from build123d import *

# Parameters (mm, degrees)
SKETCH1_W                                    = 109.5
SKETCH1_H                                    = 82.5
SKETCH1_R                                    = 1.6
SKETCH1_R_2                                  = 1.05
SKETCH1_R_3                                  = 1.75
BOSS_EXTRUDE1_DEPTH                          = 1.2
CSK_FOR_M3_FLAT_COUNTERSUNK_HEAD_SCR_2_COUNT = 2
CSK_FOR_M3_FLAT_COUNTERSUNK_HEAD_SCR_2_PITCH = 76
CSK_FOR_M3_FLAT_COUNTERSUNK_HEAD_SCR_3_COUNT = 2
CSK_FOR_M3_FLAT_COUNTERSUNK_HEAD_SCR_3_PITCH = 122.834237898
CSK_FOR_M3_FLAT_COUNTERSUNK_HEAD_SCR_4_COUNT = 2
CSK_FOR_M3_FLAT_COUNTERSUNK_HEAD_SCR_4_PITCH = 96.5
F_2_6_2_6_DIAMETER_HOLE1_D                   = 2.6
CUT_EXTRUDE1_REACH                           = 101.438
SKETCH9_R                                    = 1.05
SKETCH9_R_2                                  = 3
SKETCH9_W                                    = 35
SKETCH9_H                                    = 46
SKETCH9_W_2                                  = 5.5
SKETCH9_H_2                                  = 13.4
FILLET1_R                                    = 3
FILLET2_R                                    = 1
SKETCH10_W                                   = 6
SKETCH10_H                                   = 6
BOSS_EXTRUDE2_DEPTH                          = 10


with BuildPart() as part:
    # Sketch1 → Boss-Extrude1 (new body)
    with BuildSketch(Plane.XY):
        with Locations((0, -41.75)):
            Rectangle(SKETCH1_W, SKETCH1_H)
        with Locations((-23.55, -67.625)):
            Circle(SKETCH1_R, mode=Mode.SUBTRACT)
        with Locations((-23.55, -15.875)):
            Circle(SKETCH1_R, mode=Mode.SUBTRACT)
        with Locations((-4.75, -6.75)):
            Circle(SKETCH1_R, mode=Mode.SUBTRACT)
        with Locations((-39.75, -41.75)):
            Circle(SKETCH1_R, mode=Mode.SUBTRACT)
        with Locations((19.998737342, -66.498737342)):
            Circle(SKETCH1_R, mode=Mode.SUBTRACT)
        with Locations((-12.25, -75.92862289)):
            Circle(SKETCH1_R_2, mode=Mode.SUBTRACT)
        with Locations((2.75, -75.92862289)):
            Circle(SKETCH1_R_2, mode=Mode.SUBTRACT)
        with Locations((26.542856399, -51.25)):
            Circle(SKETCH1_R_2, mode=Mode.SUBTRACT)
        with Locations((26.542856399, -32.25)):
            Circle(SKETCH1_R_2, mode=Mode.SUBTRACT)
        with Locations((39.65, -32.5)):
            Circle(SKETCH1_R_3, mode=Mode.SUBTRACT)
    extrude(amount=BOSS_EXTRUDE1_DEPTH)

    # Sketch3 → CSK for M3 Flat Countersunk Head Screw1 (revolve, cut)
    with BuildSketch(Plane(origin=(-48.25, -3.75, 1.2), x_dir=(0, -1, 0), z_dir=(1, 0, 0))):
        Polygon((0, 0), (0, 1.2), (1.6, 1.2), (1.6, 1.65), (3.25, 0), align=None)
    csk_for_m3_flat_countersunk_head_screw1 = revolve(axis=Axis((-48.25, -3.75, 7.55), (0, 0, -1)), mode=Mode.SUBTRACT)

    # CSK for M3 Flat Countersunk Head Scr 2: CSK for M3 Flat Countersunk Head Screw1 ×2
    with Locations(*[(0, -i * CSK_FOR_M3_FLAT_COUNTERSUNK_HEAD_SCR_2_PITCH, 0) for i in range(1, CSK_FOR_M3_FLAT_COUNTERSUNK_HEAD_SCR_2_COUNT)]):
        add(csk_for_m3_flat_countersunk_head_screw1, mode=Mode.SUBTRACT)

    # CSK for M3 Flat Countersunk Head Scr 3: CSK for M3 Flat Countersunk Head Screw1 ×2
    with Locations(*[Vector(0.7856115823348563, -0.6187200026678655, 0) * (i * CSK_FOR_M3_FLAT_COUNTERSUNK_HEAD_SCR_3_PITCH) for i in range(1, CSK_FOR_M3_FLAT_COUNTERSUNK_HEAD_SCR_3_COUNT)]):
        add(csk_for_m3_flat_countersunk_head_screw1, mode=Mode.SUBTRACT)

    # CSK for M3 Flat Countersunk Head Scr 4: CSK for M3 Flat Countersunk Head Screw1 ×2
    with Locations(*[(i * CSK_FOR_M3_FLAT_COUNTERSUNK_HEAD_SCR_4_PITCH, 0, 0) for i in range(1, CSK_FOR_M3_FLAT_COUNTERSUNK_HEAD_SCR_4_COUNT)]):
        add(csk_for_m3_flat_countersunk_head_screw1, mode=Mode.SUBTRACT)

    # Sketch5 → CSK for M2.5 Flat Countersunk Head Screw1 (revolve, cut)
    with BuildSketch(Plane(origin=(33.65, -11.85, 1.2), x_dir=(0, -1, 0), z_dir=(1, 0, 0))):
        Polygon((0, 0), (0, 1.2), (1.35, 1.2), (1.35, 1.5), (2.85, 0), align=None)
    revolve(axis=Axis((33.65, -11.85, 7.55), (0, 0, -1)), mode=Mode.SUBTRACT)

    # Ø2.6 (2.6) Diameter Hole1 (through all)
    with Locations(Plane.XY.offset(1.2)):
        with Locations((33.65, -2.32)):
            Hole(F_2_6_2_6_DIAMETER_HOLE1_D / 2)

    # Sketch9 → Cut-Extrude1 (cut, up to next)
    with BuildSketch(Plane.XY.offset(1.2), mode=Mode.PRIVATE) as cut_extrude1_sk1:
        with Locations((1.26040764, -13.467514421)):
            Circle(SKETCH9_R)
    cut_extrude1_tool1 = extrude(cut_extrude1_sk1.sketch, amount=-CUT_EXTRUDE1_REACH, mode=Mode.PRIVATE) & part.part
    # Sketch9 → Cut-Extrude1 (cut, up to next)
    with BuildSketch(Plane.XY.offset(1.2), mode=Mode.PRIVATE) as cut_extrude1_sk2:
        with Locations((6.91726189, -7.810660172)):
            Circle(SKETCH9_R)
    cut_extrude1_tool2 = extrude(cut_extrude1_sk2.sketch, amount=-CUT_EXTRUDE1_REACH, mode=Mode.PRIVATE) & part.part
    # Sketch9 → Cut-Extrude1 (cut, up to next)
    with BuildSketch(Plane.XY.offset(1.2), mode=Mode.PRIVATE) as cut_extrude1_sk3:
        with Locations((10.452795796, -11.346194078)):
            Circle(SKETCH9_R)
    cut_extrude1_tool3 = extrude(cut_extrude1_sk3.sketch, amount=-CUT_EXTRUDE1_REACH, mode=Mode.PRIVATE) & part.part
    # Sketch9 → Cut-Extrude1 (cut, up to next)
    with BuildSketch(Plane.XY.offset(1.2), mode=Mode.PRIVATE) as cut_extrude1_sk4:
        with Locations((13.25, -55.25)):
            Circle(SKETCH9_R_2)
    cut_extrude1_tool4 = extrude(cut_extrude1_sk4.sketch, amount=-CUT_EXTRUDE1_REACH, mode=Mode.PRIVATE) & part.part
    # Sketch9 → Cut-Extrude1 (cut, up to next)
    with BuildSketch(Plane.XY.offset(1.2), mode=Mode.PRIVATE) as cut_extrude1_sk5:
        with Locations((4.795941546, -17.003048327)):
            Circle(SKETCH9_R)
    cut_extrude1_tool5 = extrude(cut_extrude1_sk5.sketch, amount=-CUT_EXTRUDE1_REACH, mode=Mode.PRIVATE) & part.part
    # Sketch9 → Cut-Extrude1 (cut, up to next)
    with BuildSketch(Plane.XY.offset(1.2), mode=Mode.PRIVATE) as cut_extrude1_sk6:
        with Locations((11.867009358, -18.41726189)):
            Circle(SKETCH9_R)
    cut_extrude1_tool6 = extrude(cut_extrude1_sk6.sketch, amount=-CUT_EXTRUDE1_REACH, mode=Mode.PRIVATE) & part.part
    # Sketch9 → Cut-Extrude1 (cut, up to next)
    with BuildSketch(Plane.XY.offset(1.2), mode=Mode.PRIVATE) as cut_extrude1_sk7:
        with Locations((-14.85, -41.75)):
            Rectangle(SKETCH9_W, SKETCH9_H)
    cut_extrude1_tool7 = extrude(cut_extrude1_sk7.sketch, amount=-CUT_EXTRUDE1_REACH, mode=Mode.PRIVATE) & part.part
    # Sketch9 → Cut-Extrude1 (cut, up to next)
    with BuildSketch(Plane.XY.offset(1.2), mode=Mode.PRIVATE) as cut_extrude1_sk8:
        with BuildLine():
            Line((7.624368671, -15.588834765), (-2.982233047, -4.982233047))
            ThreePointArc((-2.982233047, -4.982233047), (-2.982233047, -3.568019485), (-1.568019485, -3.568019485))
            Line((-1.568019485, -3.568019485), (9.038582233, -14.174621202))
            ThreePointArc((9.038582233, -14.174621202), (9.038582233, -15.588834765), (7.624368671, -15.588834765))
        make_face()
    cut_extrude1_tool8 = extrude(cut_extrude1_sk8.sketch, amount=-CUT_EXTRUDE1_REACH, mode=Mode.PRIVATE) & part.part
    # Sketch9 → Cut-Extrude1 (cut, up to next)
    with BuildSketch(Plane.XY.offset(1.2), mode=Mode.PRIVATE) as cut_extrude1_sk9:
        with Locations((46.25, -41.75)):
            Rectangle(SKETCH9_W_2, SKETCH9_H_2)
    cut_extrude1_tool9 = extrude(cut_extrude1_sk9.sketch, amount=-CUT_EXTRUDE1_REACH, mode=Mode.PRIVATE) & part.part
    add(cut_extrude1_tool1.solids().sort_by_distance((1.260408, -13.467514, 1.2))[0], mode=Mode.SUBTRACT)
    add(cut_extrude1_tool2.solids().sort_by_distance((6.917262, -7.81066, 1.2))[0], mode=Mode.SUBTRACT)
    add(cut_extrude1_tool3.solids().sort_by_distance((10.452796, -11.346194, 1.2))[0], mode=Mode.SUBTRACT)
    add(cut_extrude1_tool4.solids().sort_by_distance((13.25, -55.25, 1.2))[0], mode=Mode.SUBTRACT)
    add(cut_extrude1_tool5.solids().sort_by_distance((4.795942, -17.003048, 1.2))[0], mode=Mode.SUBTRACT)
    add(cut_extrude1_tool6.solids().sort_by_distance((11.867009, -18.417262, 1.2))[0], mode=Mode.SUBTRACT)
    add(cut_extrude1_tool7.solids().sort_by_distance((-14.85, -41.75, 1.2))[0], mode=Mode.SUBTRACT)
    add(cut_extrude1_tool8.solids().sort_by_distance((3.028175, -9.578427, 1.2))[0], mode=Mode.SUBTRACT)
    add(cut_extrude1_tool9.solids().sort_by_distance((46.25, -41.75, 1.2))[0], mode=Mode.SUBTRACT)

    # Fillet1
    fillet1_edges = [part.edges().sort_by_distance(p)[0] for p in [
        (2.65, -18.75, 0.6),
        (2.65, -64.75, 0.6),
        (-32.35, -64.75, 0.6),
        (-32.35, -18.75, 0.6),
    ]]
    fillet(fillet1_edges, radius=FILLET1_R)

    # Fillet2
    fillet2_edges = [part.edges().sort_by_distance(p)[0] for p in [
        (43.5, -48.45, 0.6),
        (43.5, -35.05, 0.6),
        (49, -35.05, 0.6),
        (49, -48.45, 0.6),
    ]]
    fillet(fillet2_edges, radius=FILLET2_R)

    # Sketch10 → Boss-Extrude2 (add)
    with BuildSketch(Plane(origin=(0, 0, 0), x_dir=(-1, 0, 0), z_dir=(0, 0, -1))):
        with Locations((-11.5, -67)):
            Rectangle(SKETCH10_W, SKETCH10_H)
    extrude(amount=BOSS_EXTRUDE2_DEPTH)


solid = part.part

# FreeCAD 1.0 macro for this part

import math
import FreeCAD as App
import Part
import Sketcher

V = App.Vector
Q = App.Units.Quantity


def edges_at(feature, points):
    """Names of the edges that pass closest to the given points."""
    edges = feature.Shape.Edges
    near = lambda p: min(range(len(edges)), key=lambda i: edges[i].distToShape(Part.Vertex(*p))[0])
    return sorted({f"Edge{near(p) + 1}" for p in points})

doc = App.newDocument("Part")
params = doc.addObject("Spreadsheet::Sheet", "Params")
for row, (alias, value) in enumerate([
    ("sketch1_diameter", "3.2 mm"),
    ("sketch1_diameter2", "2.1 mm"),
    ("sketch1_diameter3", "3.5 mm"),
    ("sketch1_width", "109.5 mm"),
    ("sketch1_height", "82.5 mm"),
    ("pad1_length", "1.2 mm"),
    ("sketch2_width", "1.6 mm"),
    ("sketch2_height", "1.2 mm"),
    ("sketch2_width2", "3.25 mm"),
    ("groove_angle", "360 deg"),
    ("linearpattern_pitch", "76 mm"),
    ("linearpattern2_pitch", "122.834238 mm"),
    ("linearpattern3_pitch", "96.5 mm"),
    ("sketch3_height", "1.2 mm"),
    ("sketch3_height2", "0.3 mm"),
    ("sketch3_width", "2.85 mm"),
    ("groove2_angle", "360 deg"),
    ("sketch4_diameter", "2.6 mm"),
    ("hole_diameter", "2.6 mm"),
    ("sketch5_diameter", "2.1 mm"),
    ("sketch6_diameter", "2.1 mm"),
    ("sketch7_diameter", "2.1 mm"),
    ("sketch8_diameter", "6 mm"),
    ("sketch9_diameter", "2.1 mm"),
    ("sketch10_diameter", "2.1 mm"),
    ("sketch11_width", "35 mm"),
    ("sketch11_height", "46 mm"),
    ("sketch12_radius", "1 mm"),
    ("sketch12_length", "15 mm"),
    ("sketch13_width", "5.5 mm"),
    ("sketch13_height", "13.4 mm"),
    ("fillet_radius", "3 mm"),
    ("fillet2_radius", "1 mm"),
    ("sketch14_width", "6 mm"),
    ("pad2_length", "10 mm"),
], start=1):
    params.set(f"A{row}", alias)
    params.set(f"B{row}", "=" + value)
    params.setAlias(f"B{row}", alias)

body = doc.addObject("PartDesign::Body", "Body")

sketch1 = doc.addObject("Sketcher::SketchObject", "Sketch")
body.addObject(sketch1)
sketch1.AttachmentSupport = (doc.XY_Plane, [""])
sketch1.MapMode = "FlatFace"
sketch1.addGeometry([
    Part.LineSegment(V(-54.8, -0.5, 0), V(-54.8, -83, 0)),
    Part.LineSegment(V(-54.8, -83, 0), V(54.8, -83, 0)),
    Part.LineSegment(V(54.8, -83, 0), V(54.8, -0.5, 0)),
    Part.LineSegment(V(54.8, -0.5, 0), V(-54.8, -0.5, 0)),
    Part.Circle(V(-23.6, -67.6, 0), V(0, 0, 1), 1.6),
    Part.Circle(V(-12.2, -75.9, 0), V(0, 0, 1), 1.1),
    Part.Circle(V(-39.8, -41.8, 0), V(0, 0, 1), 1.6),
    Part.Circle(V(2.8, -75.9, 0), V(0, 0, 1), 1.1),
    Part.Circle(V(20, -66.5, 0), V(0, 0, 1), 1.6),
    Part.Circle(V(26.5, -51.2, 0), V(0, 0, 1), 1.1),
    Part.Circle(V(-23.6, -15.9, 0), V(0, 0, 1), 1.6),
    Part.Circle(V(-4.8, -6.8, 0), V(0, 0, 1), 1.6),
    Part.Circle(V(26.5, -32.2, 0), V(0, 0, 1), 1.1),
    Part.Circle(V(39.6, -32.5, 0), V(0, 0, 1), 1.8),
], False)
sketch1.addConstraint([
    Sketcher.Constraint("Coincident", 0, 2, 1, 1),
    Sketcher.Constraint("Coincident", 1, 2, 2, 1),
    Sketcher.Constraint("Coincident", 2, 2, 3, 1),
    Sketcher.Constraint("Coincident", 3, 2, 0, 1),
    Sketcher.Constraint("Vertical", 0),
    Sketcher.Constraint("Horizontal", 1),
    Sketcher.Constraint("Vertical", 2),
    Sketcher.Constraint("Horizontal", 3),
    Sketcher.Constraint("Equal", 4, 6),
    Sketcher.Constraint("Equal", 5, 7),
    Sketcher.Constraint("Equal", 6, 8),
    Sketcher.Constraint("Equal", 7, 9),
    Sketcher.Constraint("Equal", 8, 10),
    Sketcher.Constraint("Equal", 10, 11),
    Sketcher.Constraint("Equal", 9, 12),
    Sketcher.Constraint("Horizontal", 5, 3, 7, 3),
    Sketcher.Constraint("Vertical", 4, 3, 10, 3),
    Sketcher.Constraint("Vertical", 9, 3, 12, 3),
    Sketcher.Constraint("Diameter", 4, Q("3.2 mm")),
    Sketcher.Constraint("Diameter", 5, Q("2.1 mm")),
    Sketcher.Constraint("Diameter", 13, Q("3.5 mm")),
    Sketcher.Constraint("DistanceX", 1, 1, 1, 2, Q("109.5 mm")),
    Sketcher.Constraint("DistanceY", 0, 2, 0, 1, Q("82.5 mm")),
    Sketcher.Constraint("DistanceY", 0, 2, -1, 1, Q("83 mm")),
    Sketcher.Constraint("DistanceX", 5, 3, 7, 3, Q("15 mm")),
    Sketcher.Constraint("DistanceX", 6, 3, 11, 3, Q("35 mm")),
    Sketcher.Constraint("DistanceY", 6, 3, 11, 3, Q("35 mm")),
    Sketcher.Constraint("DistanceY", 9, 3, 12, 3, Q("19 mm")),
    Sketcher.Constraint("DistanceX", 0, 2, 6, 3, Q("15 mm")),
    Sketcher.Constraint("DistanceX", 7, 3, 1, 2, Q("52 mm")),
    Sketcher.Constraint("DistanceY", 13, 3, 2, 2, Q("32 mm")),
    Sketcher.Constraint("DistanceX", 4, 3, 5, 3, Q("11.3 mm")),
    Sketcher.Constraint("DistanceY", 9, 3, 6, 3, Q("9.5 mm")),
    Sketcher.Constraint("DistanceX", 11, 3, 13, 3, Q("44.4 mm")),
    Sketcher.Constraint("DistanceX", 4, 3, -1, 1, Q("23.55 mm")),
    Sketcher.Constraint("DistanceY", 6, 3, -1, 1, Q("41.75 mm")),
    Sketcher.Constraint("DistanceY", 4, 3, 10, 3, Q("51.75 mm")),
    Sketcher.Constraint("DistanceY", 4, 3, -1, 1, Q("67.625 mm")),
    Sketcher.Constraint("DistanceX", 8, 3, 9, 3, Q("6.544119 mm")),
    Sketcher.Constraint("DistanceY", 5, 3, -1, 1, Q("75.928623 mm")),
    Sketcher.Constraint("DistanceX", -1, 1, 8, 3, Q("19.998737 mm")),
    Sketcher.Constraint("DistanceY", 8, 3, -1, 1, Q("66.498737 mm")),
])
sketch1.setExpression("Constraints[18]", "Params.sketch1_diameter")
sketch1.setExpression("Constraints[19]", "Params.sketch1_diameter2")
sketch1.setExpression("Constraints[20]", "Params.sketch1_diameter3")
sketch1.setExpression("Constraints[21]", "Params.sketch1_width")
sketch1.setExpression("Constraints[22]", "Params.sketch1_height")
pad1 = doc.addObject("PartDesign::Pad", "Pad")
body.addObject(pad1)
pad1.Profile = sketch1
pad1.setExpression("Length", "Params.pad1_length")

sketch2 = doc.addObject("Sketcher::SketchObject", "Sketch001")
body.addObject(sketch2)
sketch2.AttachmentSupport = (doc.YZ_Plane, [""])
sketch2.MapMode = "FlatFace"
sketch2.AttachmentOffset = App.Placement(V(0, 0, -48.25), App.Rotation())
sketch2.addGeometry([
    Part.LineSegment(V(-3.75, 0, 0), V(-3.75, 1.2, 0)),
    Part.LineSegment(V(-3.75, 1.2, 0), V(-7, 1.2, 0)),
    Part.LineSegment(V(-7, 1.2, 0), V(-5.35, -0.45, 0)),
    Part.LineSegment(V(-5.35, -0.45, 0), V(-5.35, 0, 0)),
    Part.LineSegment(V(-5.35, 0, 0), V(-3.75, 0, 0)),
], False)
sketch2.addGeometry(Part.LineSegment(V(-3.75, 1.2, 0), V(-3.75, -0.45, 0)), True)
sketch2.addConstraint([
    Sketcher.Constraint("Coincident", 0, 2, 1, 1),
    Sketcher.Constraint("Coincident", 1, 2, 2, 1),
    Sketcher.Constraint("Coincident", 2, 2, 3, 1),
    Sketcher.Constraint("Coincident", 3, 2, 4, 1),
    Sketcher.Constraint("Coincident", 4, 2, 0, 1),
    Sketcher.Constraint("Vertical", 0),
    Sketcher.Constraint("Horizontal", 1),
    Sketcher.Constraint("Vertical", 3),
    Sketcher.Constraint("Horizontal", 4),
    Sketcher.Constraint("Vertical", 5),
    Sketcher.Constraint("Coincident", 5, 1, 0, 2),
    Sketcher.Constraint("PointOnObject", 3, 2, -1),
    Sketcher.Constraint("Horizontal", 2, 2, 5, 2),
    Sketcher.Constraint("Angle", 2, Q("-45 deg")),
    Sketcher.Constraint("DistanceX", 4, 1, 4, 2, Q("1.6 mm")),
    Sketcher.Constraint("DistanceY", 0, 1, 0, 2, Q("1.2 mm")),
    Sketcher.Constraint("DistanceX", 1, 2, -1, 1, Q("7 mm")),
    Sketcher.Constraint("DistanceX", 1, 2, 1, 1, Q("3.25 mm")),
])
sketch2.setExpression("Constraints[14]", "Params.sketch2_width")
sketch2.setExpression("Constraints[15]", "Params.sketch2_height")
sketch2.setExpression("Constraints[17]", "Params.sketch2_width2")
groove = doc.addObject("PartDesign::Groove", "Groove")
body.addObject(groove)
groove.Profile = sketch2
groove.ReferenceAxis = (sketch2, ["Axis0"])
groove.setExpression("Angle", "Params.groove_angle")
doc.recompute()

linearpattern = doc.addObject("PartDesign::LinearPattern", "LinearPattern")
body.addObject(linearpattern)
linearpattern.Originals = [groove]
linearpattern.Direction = (doc.Y_Axis, [""])
linearpattern.Mode = "offset"
linearpattern.setExpression("Offset", "Params.linearpattern_pitch")
linearpattern.Occurrences = 2
linearpattern.Reversed = True
body.Tip = linearpattern
doc.recompute()

datumline = doc.addObject("PartDesign::Line", "DatumLine")
body.addObject(datumline)
datumline.Placement = App.Placement(V(0, 0, 0), App.Rotation(V(0, 0, 1), V(0.785611582, -0.618720003, 0)))
linearpattern2 = doc.addObject("PartDesign::LinearPattern", "LinearPattern001")
body.addObject(linearpattern2)
linearpattern2.Originals = [groove]
linearpattern2.Direction = (datumline, [""])
linearpattern2.Mode = "offset"
linearpattern2.setExpression("Offset", "Params.linearpattern2_pitch")
linearpattern2.Occurrences = 2
body.Tip = linearpattern2
doc.recompute()

linearpattern3 = doc.addObject("PartDesign::LinearPattern", "LinearPattern002")
body.addObject(linearpattern3)
linearpattern3.Originals = [groove]
linearpattern3.Direction = (doc.X_Axis, [""])
linearpattern3.Mode = "offset"
linearpattern3.setExpression("Offset", "Params.linearpattern3_pitch")
linearpattern3.Occurrences = 2
body.Tip = linearpattern3

sketch3 = doc.addObject("Sketcher::SketchObject", "Sketch002")
body.addObject(sketch3)
sketch3.AttachmentSupport = (doc.YZ_Plane, [""])
sketch3.MapMode = "FlatFace"
sketch3.AttachmentOffset = App.Placement(V(0, 0, 33.65), App.Rotation())
sketch3.addGeometry([
    Part.LineSegment(V(-11.85, 0, 0), V(-11.85, 1.2, 0)),
    Part.LineSegment(V(-11.85, 1.2, 0), V(-14.7, 1.2, 0)),
    Part.LineSegment(V(-14.7, 1.2, 0), V(-13.2, -0.3, 0)),
    Part.LineSegment(V(-13.2, -0.3, 0), V(-13.2, 0, 0)),
    Part.LineSegment(V(-13.2, 0, 0), V(-11.85, 0, 0)),
], False)
sketch3.addGeometry(Part.LineSegment(V(-11.85, 1.2, 0), V(-11.85, -0.3, 0)), True)
sketch3.addConstraint([
    Sketcher.Constraint("Coincident", 0, 2, 1, 1),
    Sketcher.Constraint("Coincident", 1, 2, 2, 1),
    Sketcher.Constraint("Coincident", 2, 2, 3, 1),
    Sketcher.Constraint("Coincident", 3, 2, 4, 1),
    Sketcher.Constraint("Coincident", 4, 2, 0, 1),
    Sketcher.Constraint("Vertical", 0),
    Sketcher.Constraint("Horizontal", 1),
    Sketcher.Constraint("Vertical", 3),
    Sketcher.Constraint("Horizontal", 4),
    Sketcher.Constraint("Vertical", 5),
    Sketcher.Constraint("Coincident", 5, 1, 0, 2),
    Sketcher.Constraint("PointOnObject", 3, 2, -1),
    Sketcher.Constraint("Horizontal", 2, 2, 5, 2),
    Sketcher.Constraint("Angle", 2, Q("-45 deg")),
    Sketcher.Constraint("DistanceY", 0, 1, 0, 2, Q("1.2 mm")),
    Sketcher.Constraint("DistanceY", 3, 1, 3, 2, Q("0.3 mm")),
    Sketcher.Constraint("DistanceX", 1, 2, 1, 1, Q("2.85 mm")),
    Sketcher.Constraint("DistanceX", 1, 2, -1, 1, Q("14.7 mm")),
])
sketch3.setExpression("Constraints[14]", "Params.sketch3_height")
sketch3.setExpression("Constraints[15]", "Params.sketch3_height2")
sketch3.setExpression("Constraints[16]", "Params.sketch3_width")
groove2 = doc.addObject("PartDesign::Groove", "Groove001")
body.addObject(groove2)
groove2.Profile = sketch3
groove2.ReferenceAxis = (sketch3, ["Axis0"])
groove2.setExpression("Angle", "Params.groove2_angle")

sketch4 = doc.addObject("Sketcher::SketchObject", "Sketch003")
body.addObject(sketch4)
sketch4.AttachmentSupport = (doc.XY_Plane, [""])
sketch4.MapMode = "FlatFace"
sketch4.AttachmentOffset = App.Placement(V(0, 0, 1.2), App.Rotation())
sketch4.addGeometry(Part.Circle(V(33.6, -2.3, 0), V(0, 0, 1), 1.3), False)
sketch4.addConstraint([
    Sketcher.Constraint("Diameter", 0, Q("2.6 mm")),
    Sketcher.Constraint("DistanceX", -1, 1, 0, 3, Q("33.65 mm")),
    Sketcher.Constraint("DistanceY", 0, 3, -1, 1, Q("2.32 mm")),
])
sketch4.setExpression("Constraints[0]", "Params.sketch4_diameter")
doc.recompute()
hole = doc.addObject("PartDesign::Hole", "Hole")
body.addObject(hole)
hole.Profile = sketch4
hole.ThreadType = "None"
hole.setExpression("Diameter", "Params.hole_diameter")
hole.DepthType = "ThroughAll"

sketch5 = doc.addObject("Sketcher::SketchObject", "Sketch004")
body.addObject(sketch5)
sketch5.AttachmentSupport = (doc.XY_Plane, [""])
sketch5.MapMode = "FlatFace"
sketch5.AttachmentOffset = App.Placement(V(0, 0, 1.2), App.Rotation())
sketch5.addGeometry(Part.Circle(V(1.3, -13.5, 0), V(0, 0, 1), 1.1), False)
sketch5.addConstraint([
    Sketcher.Constraint("Diameter", 0, Q("2.1 mm")),
    Sketcher.Constraint("DistanceX", -1, 1, 0, 3, Q("1.260408 mm")),
    Sketcher.Constraint("DistanceY", 0, 3, -1, 1, Q("13.467514 mm")),
])
sketch5.setExpression("Constraints[0]", "Params.sketch5_diameter")
pocket1 = doc.addObject("PartDesign::Pocket", "Pocket")
body.addObject(pocket1)
pocket1.Profile = sketch5
pocket1.Type = "UpToFirst"

sketch6 = doc.addObject("Sketcher::SketchObject", "Sketch005")
body.addObject(sketch6)
sketch6.AttachmentSupport = (doc.XY_Plane, [""])
sketch6.MapMode = "FlatFace"
sketch6.AttachmentOffset = App.Placement(V(0, 0, 1.2), App.Rotation())
sketch6.addGeometry(Part.Circle(V(6.9, -7.8, 0), V(0, 0, 1), 1.1), False)
sketch6.addConstraint([
    Sketcher.Constraint("Diameter", 0, Q("2.1 mm")),
    Sketcher.Constraint("DistanceX", -1, 1, 0, 3, Q("6.917262 mm")),
    Sketcher.Constraint("DistanceY", 0, 3, -1, 1, Q("7.81066 mm")),
])
sketch6.setExpression("Constraints[0]", "Params.sketch6_diameter")
pocket2 = doc.addObject("PartDesign::Pocket", "Pocket001")
body.addObject(pocket2)
pocket2.Profile = sketch6
pocket2.Type = "UpToFirst"

sketch7 = doc.addObject("Sketcher::SketchObject", "Sketch006")
body.addObject(sketch7)
sketch7.AttachmentSupport = (doc.XY_Plane, [""])
sketch7.MapMode = "FlatFace"
sketch7.AttachmentOffset = App.Placement(V(0, 0, 1.2), App.Rotation())
sketch7.addGeometry(Part.Circle(V(10.5, -11.3, 0), V(0, 0, 1), 1.1), False)
sketch7.addConstraint([
    Sketcher.Constraint("Diameter", 0, Q("2.1 mm")),
    Sketcher.Constraint("DistanceX", -1, 1, 0, 3, Q("10.452796 mm")),
    Sketcher.Constraint("DistanceY", 0, 3, -1, 1, Q("11.346194 mm")),
])
sketch7.setExpression("Constraints[0]", "Params.sketch7_diameter")
pocket3 = doc.addObject("PartDesign::Pocket", "Pocket002")
body.addObject(pocket3)
pocket3.Profile = sketch7
pocket3.Type = "UpToFirst"

sketch8 = doc.addObject("Sketcher::SketchObject", "Sketch007")
body.addObject(sketch8)
sketch8.AttachmentSupport = (doc.XY_Plane, [""])
sketch8.MapMode = "FlatFace"
sketch8.AttachmentOffset = App.Placement(V(0, 0, 1.2), App.Rotation())
sketch8.addGeometry(Part.Circle(V(13.2, -55.2, 0), V(0, 0, 1), 3), False)
sketch8.addConstraint([
    Sketcher.Constraint("Diameter", 0, Q("6 mm")),
    Sketcher.Constraint("DistanceX", -1, 1, 0, 3, Q("13.25 mm")),
    Sketcher.Constraint("DistanceY", 0, 3, -1, 1, Q("55.25 mm")),
])
sketch8.setExpression("Constraints[0]", "Params.sketch8_diameter")
pocket4 = doc.addObject("PartDesign::Pocket", "Pocket003")
body.addObject(pocket4)
pocket4.Profile = sketch8
pocket4.Type = "UpToFirst"

sketch9 = doc.addObject("Sketcher::SketchObject", "Sketch008")
body.addObject(sketch9)
sketch9.AttachmentSupport = (doc.XY_Plane, [""])
sketch9.MapMode = "FlatFace"
sketch9.AttachmentOffset = App.Placement(V(0, 0, 1.2), App.Rotation())
sketch9.addGeometry(Part.Circle(V(4.8, -17, 0), V(0, 0, 1), 1.1), False)
sketch9.addConstraint([
    Sketcher.Constraint("Diameter", 0, Q("2.1 mm")),
    Sketcher.Constraint("DistanceX", -1, 1, 0, 3, Q("4.795942 mm")),
    Sketcher.Constraint("DistanceY", 0, 3, -1, 1, Q("17.003048 mm")),
])
sketch9.setExpression("Constraints[0]", "Params.sketch9_diameter")
pocket5 = doc.addObject("PartDesign::Pocket", "Pocket004")
body.addObject(pocket5)
pocket5.Profile = sketch9
pocket5.Type = "UpToFirst"

sketch10 = doc.addObject("Sketcher::SketchObject", "Sketch009")
body.addObject(sketch10)
sketch10.AttachmentSupport = (doc.XY_Plane, [""])
sketch10.MapMode = "FlatFace"
sketch10.AttachmentOffset = App.Placement(V(0, 0, 1.2), App.Rotation())
sketch10.addGeometry(Part.Circle(V(11.9, -18.4, 0), V(0, 0, 1), 1.1), False)
sketch10.addConstraint([
    Sketcher.Constraint("Diameter", 0, Q("2.1 mm")),
    Sketcher.Constraint("DistanceX", -1, 1, 0, 3, Q("11.867009 mm")),
    Sketcher.Constraint("DistanceY", 0, 3, -1, 1, Q("18.417262 mm")),
])
sketch10.setExpression("Constraints[0]", "Params.sketch10_diameter")
pocket6 = doc.addObject("PartDesign::Pocket", "Pocket005")
body.addObject(pocket6)
pocket6.Profile = sketch10
pocket6.Type = "UpToFirst"

sketch11 = doc.addObject("Sketcher::SketchObject", "Sketch010")
body.addObject(sketch11)
sketch11.AttachmentSupport = (doc.XY_Plane, [""])
sketch11.MapMode = "FlatFace"
sketch11.AttachmentOffset = App.Placement(V(0, 0, 1.2), App.Rotation())
sketch11.addGeometry([
    Part.LineSegment(V(-32, -19, 0), V(-32, -65, 0)),
    Part.LineSegment(V(-32, -65, 0), V(3, -65, 0)),
    Part.LineSegment(V(3, -65, 0), V(3, -19, 0)),
    Part.LineSegment(V(3, -19, 0), V(-32, -19, 0)),
], False)
sketch11.addConstraint([
    Sketcher.Constraint("Coincident", 0, 2, 1, 1),
    Sketcher.Constraint("Coincident", 1, 2, 2, 1),
    Sketcher.Constraint("Coincident", 2, 2, 3, 1),
    Sketcher.Constraint("Coincident", 3, 2, 0, 1),
    Sketcher.Constraint("Vertical", 0),
    Sketcher.Constraint("Horizontal", 1),
    Sketcher.Constraint("Vertical", 2),
    Sketcher.Constraint("Horizontal", 3),
    Sketcher.Constraint("DistanceX", 1, 1, 1, 2, Q("35 mm")),
    Sketcher.Constraint("DistanceY", 0, 2, 0, 1, Q("46 mm")),
    Sketcher.Constraint("DistanceX", 0, 2, -1, 1, Q("32.35 mm")),
    Sketcher.Constraint("DistanceY", 0, 2, -1, 1, Q("64.75 mm")),
])
sketch11.setExpression("Constraints[8]", "Params.sketch11_width")
sketch11.setExpression("Constraints[9]", "Params.sketch11_height")
pocket7 = doc.addObject("PartDesign::Pocket", "Pocket006")
body.addObject(pocket7)
pocket7.Profile = sketch11
pocket7.Type = "UpToFirst"

sketch12 = doc.addObject("Sketcher::SketchObject", "Sketch011")
body.addObject(sketch12)
sketch12.AttachmentSupport = (doc.XY_Plane, [""])
sketch12.MapMode = "FlatFace"
sketch12.AttachmentOffset = App.Placement(V(0, 0, 1.2), App.Rotation())
sketch12.addGeometry([
    Part.LineSegment(V(-3, -5, 0), V(7.6, -15.6, 0)),
    Part.ArcOfCircle(Part.Circle(V(8.3, -14.9, 0), V(0, 0, 1), 1), math.radians(-135), math.radians(45)),
    Part.LineSegment(V(9, -14.2, 0), V(-1.6, -3.6, 0)),
    Part.ArcOfCircle(Part.Circle(V(-2.3, -4.3, 0), V(0, 0, 1), 1), math.radians(45), math.radians(225)),
], False)
sketch12.addConstraint([
    Sketcher.Constraint("Tangent", 0, 2, 1, 1),
    Sketcher.Constraint("Tangent", 1, 2, 2, 1),
    Sketcher.Constraint("Tangent", 2, 2, 3, 1),
    Sketcher.Constraint("Tangent", 3, 2, 0, 1),
    Sketcher.Constraint("Equal", 1, 3),
    Sketcher.Constraint("Radius", 1, Q("1 mm")),
    Sketcher.Constraint("Angle", 0, Q("-45 deg")),
    Sketcher.Constraint("Distance", 0, Q("15 mm")),
    Sketcher.Constraint("DistanceX", -1, 1, 0, 2, Q("7.624369 mm")),
    Sketcher.Constraint("DistanceY", 1, 2, -1, 1, Q("14.174621 mm")),
])
sketch12.setExpression("Constraints[5]", "Params.sketch12_radius")
sketch12.setExpression("Constraints[7]", "Params.sketch12_length")
pocket8 = doc.addObject("PartDesign::Pocket", "Pocket007")
body.addObject(pocket8)
pocket8.Profile = sketch12
pocket8.Type = "UpToFirst"

sketch13 = doc.addObject("Sketcher::SketchObject", "Sketch012")
body.addObject(sketch13)
sketch13.AttachmentSupport = (doc.XY_Plane, [""])
sketch13.MapMode = "FlatFace"
sketch13.AttachmentOffset = App.Placement(V(0, 0, 1.2), App.Rotation())
sketch13.addGeometry([
    Part.LineSegment(V(44, -35, 0), V(44, -48, 0)),
    Part.LineSegment(V(44, -48, 0), V(49, -48, 0)),
    Part.LineSegment(V(49, -48, 0), V(49, -35, 0)),
    Part.LineSegment(V(49, -35, 0), V(44, -35, 0)),
], False)
sketch13.addConstraint([
    Sketcher.Constraint("Coincident", 0, 2, 1, 1),
    Sketcher.Constraint("Coincident", 1, 2, 2, 1),
    Sketcher.Constraint("Coincident", 2, 2, 3, 1),
    Sketcher.Constraint("Coincident", 3, 2, 0, 1),
    Sketcher.Constraint("Vertical", 0),
    Sketcher.Constraint("Horizontal", 1),
    Sketcher.Constraint("Vertical", 2),
    Sketcher.Constraint("Horizontal", 3),
    Sketcher.Constraint("DistanceX", 1, 1, 1, 2, Q("5.5 mm")),
    Sketcher.Constraint("DistanceY", 0, 2, 0, 1, Q("13.4 mm")),
    Sketcher.Constraint("DistanceX", -1, 1, 1, 2, Q("49 mm")),
    Sketcher.Constraint("DistanceY", 0, 2, -1, 1, Q("48.45 mm")),
])
sketch13.setExpression("Constraints[8]", "Params.sketch13_width")
sketch13.setExpression("Constraints[9]", "Params.sketch13_height")
pocket9 = doc.addObject("PartDesign::Pocket", "Pocket008")
body.addObject(pocket9)
pocket9.Profile = sketch13
pocket9.Type = "UpToFirst"
doc.recompute()

fillet = doc.addObject("PartDesign::Fillet", "Fillet")
body.addObject(fillet)
fillet.Base = (pocket9, edges_at(pocket9, [
    (2.65, -18.75, 0.6),
    (2.65, -64.75, 0.6),
    (-32.35, -64.75, 0.6),
    (-32.35, -18.75, 0.6),
]))
fillet.setExpression("Radius", "Params.fillet_radius")
doc.recompute()

fillet2 = doc.addObject("PartDesign::Fillet", "Fillet001")
body.addObject(fillet2)
fillet2.Base = (fillet, edges_at(fillet, [
    (43.5, -48.45, 0.6),
    (43.5, -35.05, 0.6),
    (49, -35.05, 0.6),
    (49, -48.45, 0.6),
]))
fillet2.setExpression("Radius", "Params.fillet2_radius")

sketch14 = doc.addObject("Sketcher::SketchObject", "Sketch013")
body.addObject(sketch14)
sketch14.AttachmentSupport = (doc.XY_Plane, [""])
sketch14.MapMode = "FlatFace"
sketch14.addGeometry([
    Part.LineSegment(V(14, -64, 0), V(14, -70, 0)),
    Part.LineSegment(V(14, -70, 0), V(8, -70, 0)),
    Part.LineSegment(V(8, -70, 0), V(8, -64, 0)),
    Part.LineSegment(V(8, -64, 0), V(14, -64, 0)),
], False)
sketch14.addConstraint([
    Sketcher.Constraint("Coincident", 0, 2, 1, 1),
    Sketcher.Constraint("Coincident", 1, 2, 2, 1),
    Sketcher.Constraint("Coincident", 2, 2, 3, 1),
    Sketcher.Constraint("Coincident", 3, 2, 0, 1),
    Sketcher.Constraint("Vertical", 0),
    Sketcher.Constraint("Horizontal", 1),
    Sketcher.Constraint("Vertical", 2),
    Sketcher.Constraint("Horizontal", 3),
    Sketcher.Constraint("Equal", 3, 0),
    Sketcher.Constraint("DistanceX", 1, 2, 1, 1, Q("6 mm")),
    Sketcher.Constraint("DistanceY", 0, 2, -1, 1, Q("70 mm")),
    Sketcher.Constraint("DistanceX", -1, 1, 0, 2, Q("14.5 mm")),
])
sketch14.setExpression("Constraints[9]", "Params.sketch14_width")
pad2 = doc.addObject("PartDesign::Pad", "Pad001")
body.addObject(pad2)
pad2.Profile = sketch14
pad2.setExpression("Length", "Params.pad2_length")
pad2.Reversed = True

doc.recompute()
